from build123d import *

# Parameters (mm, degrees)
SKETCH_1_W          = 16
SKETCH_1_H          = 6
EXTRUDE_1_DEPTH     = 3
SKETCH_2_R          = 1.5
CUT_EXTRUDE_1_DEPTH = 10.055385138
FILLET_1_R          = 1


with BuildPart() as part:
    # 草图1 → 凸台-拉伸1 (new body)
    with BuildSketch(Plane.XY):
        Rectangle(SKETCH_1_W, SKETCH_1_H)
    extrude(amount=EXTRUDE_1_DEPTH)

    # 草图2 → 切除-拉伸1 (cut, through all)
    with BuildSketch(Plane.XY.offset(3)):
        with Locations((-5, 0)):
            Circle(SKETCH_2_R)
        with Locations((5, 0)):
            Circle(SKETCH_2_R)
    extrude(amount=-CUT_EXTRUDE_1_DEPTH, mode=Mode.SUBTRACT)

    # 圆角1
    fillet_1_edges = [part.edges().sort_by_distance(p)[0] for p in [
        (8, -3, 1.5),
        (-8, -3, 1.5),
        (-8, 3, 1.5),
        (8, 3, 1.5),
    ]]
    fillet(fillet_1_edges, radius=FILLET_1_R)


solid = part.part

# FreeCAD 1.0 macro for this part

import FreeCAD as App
import Part
import Sketcher

V = App.Vector
Q = App.Units.Quantity


def edges_at(feature, points):
    """Names of the edges that pass closest to the given points."""
    edges = feature.Shape.Edges
    near = lambda p: min(range(len(edges)), key=lambda i: edges[i].distToShape(Part.Vertex(*p))[0])
    return sorted({f"Edge{near(p) + 1}" for p in points})


def add_polygon(sketch, points):
    """Adds a closed chain of lines whose ends are joined by coincident constraints."""
    first, n = sketch.GeometryCount, len(points)
    for a, b in zip(points, points[1:] + points[:1]):
        sketch.addGeometry(Part.LineSegment(App.Vector(*a, 0), App.Vector(*b, 0)), False)
    for i in range(n):
        sketch.addConstraint(Sketcher.Constraint("Coincident", first + i, 2, first + (i + 1) % n, 1))

doc = App.newDocument("Part")
body = doc.addObject("PartDesign::Body", "Body")

# Sketch on XY plane
sketch1 = body.newObject("Sketcher::SketchObject", "Sketch")
sketch1.AttachmentSupport = (doc.getObject("XY_Plane"), [""])
sketch1.MapMode = "FlatFace"
add_polygon(sketch1, [(-8, 3), (-8, -3), (8, -3), (8, 3)])  # lines 0-3
sketch1.addConstraint(Sketcher.Constraint("Vertical", 0))
sketch1.addConstraint(Sketcher.Constraint("Horizontal", 1))
sketch1.addConstraint(Sketcher.Constraint("Vertical", 2))
sketch1.addConstraint(Sketcher.Constraint("Horizontal", 3))
sketch1.addConstraint(Sketcher.Constraint("Symmetric", 0, 2, 2, 2, -1, 1))
sketch1.addConstraint(Sketcher.Constraint("DistanceX", 1, 1, 1, 2, Q("16 mm")))
sketch1.addConstraint(Sketcher.Constraint("DistanceY", 0, 2, 0, 1, Q("6 mm")))
pad1 = body.newObject("PartDesign::Pad", "Pad")
pad1.Profile = sketch1
pad1.Length = 3

# Sketch on XY plane
sketch2 = body.newObject("Sketcher::SketchObject", "Sketch001")
sketch2.AttachmentSupport = (doc.getObject("XY_Plane"), [""])
sketch2.MapMode = "FlatFace"
sketch2.AttachmentOffset = App.Placement(V(0, 0, 3), App.Rotation())
sketch2.addGeometry(Part.Circle(V(-5, 0, 0), V(0, 0, 1), 1.5), False)
sketch2.addGeometry(Part.Circle(V(5, 0, 0), V(0, 0, 1), 1.5), False)
sketch2.addConstraint(Sketcher.Constraint("Equal", 0, 1))
sketch2.addConstraint(Sketcher.Constraint("Symmetric", 0, 3, 1, 3, -1, 1))
sketch2.addConstraint(Sketcher.Constraint("PointOnObject", 0, 3, -1))
sketch2.addConstraint(Sketcher.Constraint("Diameter", 0, Q("3 mm")))
sketch2.addConstraint(Sketcher.Constraint("DistanceX", 0, 3, -1, 1, Q("5 mm")))
pocket1 = body.newObject("PartDesign::Pocket", "Pocket")
pocket1.Profile = sketch2
pocket1.Type = "ThroughAll"
doc.recompute()

fillet = body.newObject("PartDesign::Fillet", "Fillet")
fillet.Base = (pocket1, edges_at(pocket1, [
    (8, -3, 1.5),
    (-8, -3, 1.5),
    (-8, 3, 1.5),
    (8, 3, 1.5),
]))
fillet.Radius = 1

doc.recompute()
